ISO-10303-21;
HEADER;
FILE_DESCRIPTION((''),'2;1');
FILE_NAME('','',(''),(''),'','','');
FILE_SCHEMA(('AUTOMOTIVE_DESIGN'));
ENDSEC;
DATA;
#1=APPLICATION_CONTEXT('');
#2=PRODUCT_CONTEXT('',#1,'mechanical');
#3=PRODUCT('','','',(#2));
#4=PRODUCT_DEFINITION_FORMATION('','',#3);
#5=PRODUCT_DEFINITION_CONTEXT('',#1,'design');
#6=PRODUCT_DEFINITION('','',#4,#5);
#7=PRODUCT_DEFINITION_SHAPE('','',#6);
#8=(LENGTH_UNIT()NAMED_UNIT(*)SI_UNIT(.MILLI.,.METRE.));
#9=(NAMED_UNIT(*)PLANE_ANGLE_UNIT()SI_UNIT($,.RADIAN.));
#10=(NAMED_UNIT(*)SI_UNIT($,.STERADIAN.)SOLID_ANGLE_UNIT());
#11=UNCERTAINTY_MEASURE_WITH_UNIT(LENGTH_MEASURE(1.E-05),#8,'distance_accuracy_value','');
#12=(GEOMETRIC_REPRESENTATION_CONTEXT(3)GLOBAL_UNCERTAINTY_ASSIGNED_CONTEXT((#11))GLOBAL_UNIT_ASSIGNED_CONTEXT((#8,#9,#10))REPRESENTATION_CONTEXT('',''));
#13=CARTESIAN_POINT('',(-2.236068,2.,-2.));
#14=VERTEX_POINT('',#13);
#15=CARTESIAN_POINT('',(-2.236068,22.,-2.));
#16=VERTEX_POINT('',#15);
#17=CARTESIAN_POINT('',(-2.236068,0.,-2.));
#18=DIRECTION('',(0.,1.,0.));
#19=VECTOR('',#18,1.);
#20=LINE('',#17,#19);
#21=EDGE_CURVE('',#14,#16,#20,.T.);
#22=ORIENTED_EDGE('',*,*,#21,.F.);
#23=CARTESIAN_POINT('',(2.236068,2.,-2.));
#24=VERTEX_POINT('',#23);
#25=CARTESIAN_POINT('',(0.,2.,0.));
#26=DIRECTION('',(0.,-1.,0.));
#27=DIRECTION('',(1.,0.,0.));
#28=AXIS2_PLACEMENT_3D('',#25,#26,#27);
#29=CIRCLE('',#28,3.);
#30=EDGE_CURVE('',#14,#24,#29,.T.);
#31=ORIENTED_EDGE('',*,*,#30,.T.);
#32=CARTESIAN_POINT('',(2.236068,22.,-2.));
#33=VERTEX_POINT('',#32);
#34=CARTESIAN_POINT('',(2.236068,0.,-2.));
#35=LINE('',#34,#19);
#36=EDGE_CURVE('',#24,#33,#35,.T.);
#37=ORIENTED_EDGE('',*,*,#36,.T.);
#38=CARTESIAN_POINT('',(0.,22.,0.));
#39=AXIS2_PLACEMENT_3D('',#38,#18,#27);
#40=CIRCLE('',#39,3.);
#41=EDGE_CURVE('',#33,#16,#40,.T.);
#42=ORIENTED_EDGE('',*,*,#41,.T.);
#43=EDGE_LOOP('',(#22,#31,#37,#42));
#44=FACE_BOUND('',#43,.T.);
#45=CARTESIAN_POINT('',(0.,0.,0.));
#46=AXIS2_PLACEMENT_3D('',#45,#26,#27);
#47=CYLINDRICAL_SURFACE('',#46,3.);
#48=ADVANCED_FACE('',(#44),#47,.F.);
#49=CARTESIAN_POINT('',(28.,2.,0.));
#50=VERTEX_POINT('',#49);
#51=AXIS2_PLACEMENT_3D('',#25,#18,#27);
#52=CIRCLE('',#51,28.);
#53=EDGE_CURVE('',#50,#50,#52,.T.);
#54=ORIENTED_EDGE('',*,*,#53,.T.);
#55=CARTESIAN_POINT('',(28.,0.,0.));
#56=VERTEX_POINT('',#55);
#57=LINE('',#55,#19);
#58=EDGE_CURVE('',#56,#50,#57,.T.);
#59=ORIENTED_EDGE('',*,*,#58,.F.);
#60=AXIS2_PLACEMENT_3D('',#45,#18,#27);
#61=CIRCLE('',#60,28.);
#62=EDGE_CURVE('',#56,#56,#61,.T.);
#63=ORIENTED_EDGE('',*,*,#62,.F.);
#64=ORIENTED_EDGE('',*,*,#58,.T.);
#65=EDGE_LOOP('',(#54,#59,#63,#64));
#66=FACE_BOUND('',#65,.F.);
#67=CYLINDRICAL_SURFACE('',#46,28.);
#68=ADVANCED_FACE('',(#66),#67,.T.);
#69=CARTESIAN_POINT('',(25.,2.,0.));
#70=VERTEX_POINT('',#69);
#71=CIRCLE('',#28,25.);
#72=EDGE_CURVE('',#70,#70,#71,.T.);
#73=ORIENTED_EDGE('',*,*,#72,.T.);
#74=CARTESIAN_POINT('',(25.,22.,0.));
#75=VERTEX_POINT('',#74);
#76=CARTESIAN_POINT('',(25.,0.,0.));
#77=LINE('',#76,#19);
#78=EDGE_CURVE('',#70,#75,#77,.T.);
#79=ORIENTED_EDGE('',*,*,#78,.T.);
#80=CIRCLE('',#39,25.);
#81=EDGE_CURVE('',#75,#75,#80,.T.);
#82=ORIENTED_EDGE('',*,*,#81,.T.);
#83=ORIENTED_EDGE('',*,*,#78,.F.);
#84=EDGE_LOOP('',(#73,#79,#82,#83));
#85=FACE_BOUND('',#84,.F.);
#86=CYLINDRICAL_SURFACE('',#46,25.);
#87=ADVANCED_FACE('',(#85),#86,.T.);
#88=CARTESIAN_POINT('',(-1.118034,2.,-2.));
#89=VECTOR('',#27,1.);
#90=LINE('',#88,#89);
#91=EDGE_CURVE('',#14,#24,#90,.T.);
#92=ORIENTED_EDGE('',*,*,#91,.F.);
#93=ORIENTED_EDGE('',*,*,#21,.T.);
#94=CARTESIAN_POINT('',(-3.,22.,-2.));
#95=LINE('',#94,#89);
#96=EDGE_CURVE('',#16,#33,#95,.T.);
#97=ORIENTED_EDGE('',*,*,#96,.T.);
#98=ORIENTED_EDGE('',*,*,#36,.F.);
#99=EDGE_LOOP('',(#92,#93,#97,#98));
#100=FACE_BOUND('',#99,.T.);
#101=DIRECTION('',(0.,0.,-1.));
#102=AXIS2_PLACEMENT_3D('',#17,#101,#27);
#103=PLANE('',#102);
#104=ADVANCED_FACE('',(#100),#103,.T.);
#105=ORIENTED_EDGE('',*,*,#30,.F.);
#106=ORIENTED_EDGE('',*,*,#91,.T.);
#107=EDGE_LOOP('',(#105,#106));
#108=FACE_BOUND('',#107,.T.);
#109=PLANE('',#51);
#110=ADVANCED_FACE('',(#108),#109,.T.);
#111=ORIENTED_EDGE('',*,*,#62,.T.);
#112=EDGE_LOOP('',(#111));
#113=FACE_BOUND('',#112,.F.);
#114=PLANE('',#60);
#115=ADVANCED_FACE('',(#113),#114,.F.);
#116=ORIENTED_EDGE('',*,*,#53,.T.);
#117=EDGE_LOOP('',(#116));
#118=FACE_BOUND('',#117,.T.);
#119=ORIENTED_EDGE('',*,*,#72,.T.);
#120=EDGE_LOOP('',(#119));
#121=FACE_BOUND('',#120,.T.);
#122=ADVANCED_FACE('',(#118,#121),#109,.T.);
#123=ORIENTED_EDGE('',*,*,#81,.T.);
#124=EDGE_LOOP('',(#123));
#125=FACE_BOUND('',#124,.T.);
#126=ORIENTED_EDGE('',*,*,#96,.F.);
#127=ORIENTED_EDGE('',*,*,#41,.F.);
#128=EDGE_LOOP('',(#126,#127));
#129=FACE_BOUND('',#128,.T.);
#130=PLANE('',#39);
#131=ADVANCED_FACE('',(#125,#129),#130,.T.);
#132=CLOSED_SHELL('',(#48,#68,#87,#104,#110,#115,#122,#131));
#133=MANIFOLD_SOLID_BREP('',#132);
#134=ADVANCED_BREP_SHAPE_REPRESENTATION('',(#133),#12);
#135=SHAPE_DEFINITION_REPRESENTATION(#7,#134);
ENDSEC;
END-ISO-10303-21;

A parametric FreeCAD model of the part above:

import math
import FreeCAD as App
import Part
import Sketcher

V = App.Vector

doc = App.newDocument("Part")
body = doc.addObject("PartDesign::Body", "Body")

sketch1 = body.newObject("Sketcher::SketchObject", "Sketch")
sketch1.AttachmentSupport = (doc.getObject("XZ_Plane"), [""])
sketch1.MapMode = "FlatFace"
sketch1.addGeometry([
    Part.Circle(V(0, 0, 0), V(0, 0, 1), 25),
    Part.LineSegment(V(2.2, -2, 0), V(-2.2, -2, 0)),
    Part.ArcOfCircle(Part.Circle(V(0, 0, 0), V(0, 0, 1), 3), math.radians(-138), math.radians(-42)),
], False)
sketch1.addConstraint([
    Sketcher.Constraint("Coincident", 1, 1, 2, 2),
    Sketcher.Constraint("Coincident", 2, 1, 1, 2),
    Sketcher.Constraint("Horizontal", 1),
    Sketcher.Constraint("Coincident", 0, 3, -1, 1),
    Sketcher.Constraint("Coincident", 2, 3, -1, 1),
    Sketcher.Constraint("Diameter", 0, 50.0),
    Sketcher.Constraint("Radius", 2, 3.0),
    Sketcher.Constraint("DistanceY", 1, 1, -1, 1, 2.0),
])
pad1 = body.newObject("PartDesign::Pad", "Pad")
pad1.Profile = sketch1
pad1.Length = 22
pad1.Reversed = True

sketch2 = body.newObject("Sketcher::SketchObject", "Sketch001")
sketch2.AttachmentSupport = (doc.getObject("XZ_Plane"), [""])
sketch2.MapMode = "FlatFace"
sketch2.addGeometry(Part.Circle(V(0, 0, 0), V(0, 0, 1), 28), False)
sketch2.addConstraint([
    Sketcher.Constraint("Coincident", 0, 3, -1, 1),
    Sketcher.Constraint("Diameter", 0, 56.0),
])
pad2 = body.newObject("PartDesign::Pad", "Pad001")
pad2.Profile = sketch2
pad2.Length = 2
pad2.Reversed = True

doc.recompute()
